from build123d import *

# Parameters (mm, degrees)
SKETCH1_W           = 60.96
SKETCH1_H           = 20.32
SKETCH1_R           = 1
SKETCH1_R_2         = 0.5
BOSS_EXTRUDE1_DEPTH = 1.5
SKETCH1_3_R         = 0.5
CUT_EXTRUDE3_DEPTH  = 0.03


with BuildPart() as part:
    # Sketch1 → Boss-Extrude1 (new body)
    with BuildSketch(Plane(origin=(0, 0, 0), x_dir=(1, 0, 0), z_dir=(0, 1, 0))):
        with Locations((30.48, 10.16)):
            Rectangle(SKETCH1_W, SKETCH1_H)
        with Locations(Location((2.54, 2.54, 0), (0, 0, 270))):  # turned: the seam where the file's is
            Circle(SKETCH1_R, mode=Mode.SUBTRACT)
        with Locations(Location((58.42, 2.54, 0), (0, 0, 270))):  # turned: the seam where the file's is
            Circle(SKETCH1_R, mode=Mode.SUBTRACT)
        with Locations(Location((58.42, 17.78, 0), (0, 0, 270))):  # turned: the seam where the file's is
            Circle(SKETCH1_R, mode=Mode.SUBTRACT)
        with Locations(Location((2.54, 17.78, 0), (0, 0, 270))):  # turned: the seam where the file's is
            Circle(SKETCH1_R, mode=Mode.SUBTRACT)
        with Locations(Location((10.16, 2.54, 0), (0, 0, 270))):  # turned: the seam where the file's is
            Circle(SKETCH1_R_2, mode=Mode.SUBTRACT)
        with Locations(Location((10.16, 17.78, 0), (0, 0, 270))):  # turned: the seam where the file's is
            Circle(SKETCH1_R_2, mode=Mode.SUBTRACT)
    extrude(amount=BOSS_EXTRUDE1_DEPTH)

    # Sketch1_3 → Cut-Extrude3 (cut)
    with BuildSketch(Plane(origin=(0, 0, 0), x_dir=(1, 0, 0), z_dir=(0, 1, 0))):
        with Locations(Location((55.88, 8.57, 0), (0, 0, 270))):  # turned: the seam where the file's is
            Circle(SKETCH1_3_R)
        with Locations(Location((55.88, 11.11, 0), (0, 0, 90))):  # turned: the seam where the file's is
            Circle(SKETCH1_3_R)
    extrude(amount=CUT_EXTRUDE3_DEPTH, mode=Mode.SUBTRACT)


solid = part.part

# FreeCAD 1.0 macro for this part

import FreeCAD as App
import Part
import Sketcher
from FreeCAD import Vector


def add_polygon(sketch, points):
    """Adds a closed chain of lines whose ends are joined by coincident constraints."""
    first, n = sketch.GeometryCount, len(points)
    for a, b in zip(points, points[1:] + points[:1]):
        sketch.addGeometry(Part.LineSegment(App.Vector(*a, 0), App.Vector(*b, 0)), False)
    for i in range(n):
        sketch.addConstraint(Sketcher.Constraint("Coincident", first + i, 2, first + (i + 1) % n, 1))

doc = App.newDocument("Part")
body = doc.addObject("PartDesign::Body", "Body")

# Sketch on XZ plane
sketch1 = body.newObject("Sketcher::SketchObject", "Sketch")
sketch1.AttachmentSupport = (doc.getObject("XZ_Plane"), [""])
sketch1.MapMode = "FlatFace"
add_polygon(sketch1, [(0, -20.32), (0, 0), (60.96, 0), (60.96, -20.32)])  # lines 0-3
sketch1.addGeometry(Part.Circle(Vector(2.54, -2.54, 0), Vector(0, 0, 1), 1), False)  # 4
sketch1.addGeometry(Part.Circle(Vector(10.16, -2.54, 0), Vector(0, 0, 1), 0.5), False)  # 5
sketch1.addGeometry(Part.Circle(Vector(58.42, -2.54, 0), Vector(0, 0, 1), 1), False)  # 6
sketch1.addGeometry(Part.Circle(Vector(2.54, -17.78, 0), Vector(0, 0, 1), 1), False)  # 7
sketch1.addGeometry(Part.Circle(Vector(10.16, -17.78, 0), Vector(0, 0, 1), 0.5), False)  # 8
sketch1.addGeometry(Part.Circle(Vector(58.42, -17.78, 0), Vector(0, 0, 1), 1), False)  # 9
sketch1.addConstraint([
    Sketcher.Constraint("Vertical", 0),
    Sketcher.Constraint("Horizontal", 1),
    Sketcher.Constraint("Vertical", 2),
    Sketcher.Constraint("Horizontal", 3),
    Sketcher.Constraint("Coincident", 0, 2, -1, 1),
    Sketcher.Constraint("Equal", 4, 6),
    Sketcher.Constraint("Equal", 6, 7),
    Sketcher.Constraint("Equal", 5, 8),
    Sketcher.Constraint("Equal", 7, 9),
    Sketcher.Constraint("Horizontal", 4, 3, 5, 3),
    Sketcher.Constraint("Horizontal", 5, 3, 6, 3),
    Sketcher.Constraint("Horizontal", 7, 3, 8, 3),
    Sketcher.Constraint("Horizontal", 8, 3, 9, 3),
    Sketcher.Constraint("Vertical", 4, 3, 7, 3),
    Sketcher.Constraint("Vertical", 5, 3, 8, 3),
    Sketcher.Constraint("Vertical", 6, 3, 9, 3),
    Sketcher.Constraint("Diameter", 4, 2.0),
    Sketcher.Constraint("Diameter", 5, 1.0),
    Sketcher.Constraint("DistanceX", 1, 1, 1, 2, 60.96),
    Sketcher.Constraint("DistanceY", 0, 1, 0, 2, 20.32),
    Sketcher.Constraint("DistanceX", 5, 3, 1, 2, 50.8),
    Sketcher.Constraint("DistanceX", -1, 1, 4, 3, 2.54),
    Sketcher.Constraint("DistanceY", 4, 3, -1, 1, 2.54),
    Sketcher.Constraint("DistanceX", -1, 1, 6, 3, 58.42),
    Sketcher.Constraint("DistanceY", 7, 3, -1, 1, 17.78),
])
pad1 = body.newObject("PartDesign::Pad", "Pad")
pad1.Profile = sketch1
pad1.Length = 1.5
pad1.Reversed = True

# Sketch on XZ plane
sketch2 = body.newObject("Sketcher::SketchObject", "Sketch001")
sketch2.AttachmentSupport = (doc.getObject("XZ_Plane"), [""])
sketch2.MapMode = "FlatFace"
sketch2.addGeometry([
    Part.Circle(Vector(55.88, -8.57, 0), Vector(0, 0, 1), 0.5),
    Part.Circle(Vector(55.88, -11.11, 0), Vector(0, 0, 1), 0.5),
], False)
sketch2.addConstraint([
    Sketcher.Constraint("Equal", 0, 1),
    Sketcher.Constraint("Vertical", 0, 3, 1, 3),
    Sketcher.Constraint("Diameter", 0, 1.0),
    Sketcher.Constraint("DistanceX", -1, 1, 0, 3, 55.88),
    Sketcher.Constraint("DistanceY", 0, 3, -1, 1, 8.57),
    Sketcher.Constraint("DistanceY", 1, 3, -1, 1, 11.11),
])
pocket1 = body.newObject("PartDesign::Pocket", "Pocket")
pocket1.Profile = sketch2
pocket1.Length = 0.03

doc.recompute()
